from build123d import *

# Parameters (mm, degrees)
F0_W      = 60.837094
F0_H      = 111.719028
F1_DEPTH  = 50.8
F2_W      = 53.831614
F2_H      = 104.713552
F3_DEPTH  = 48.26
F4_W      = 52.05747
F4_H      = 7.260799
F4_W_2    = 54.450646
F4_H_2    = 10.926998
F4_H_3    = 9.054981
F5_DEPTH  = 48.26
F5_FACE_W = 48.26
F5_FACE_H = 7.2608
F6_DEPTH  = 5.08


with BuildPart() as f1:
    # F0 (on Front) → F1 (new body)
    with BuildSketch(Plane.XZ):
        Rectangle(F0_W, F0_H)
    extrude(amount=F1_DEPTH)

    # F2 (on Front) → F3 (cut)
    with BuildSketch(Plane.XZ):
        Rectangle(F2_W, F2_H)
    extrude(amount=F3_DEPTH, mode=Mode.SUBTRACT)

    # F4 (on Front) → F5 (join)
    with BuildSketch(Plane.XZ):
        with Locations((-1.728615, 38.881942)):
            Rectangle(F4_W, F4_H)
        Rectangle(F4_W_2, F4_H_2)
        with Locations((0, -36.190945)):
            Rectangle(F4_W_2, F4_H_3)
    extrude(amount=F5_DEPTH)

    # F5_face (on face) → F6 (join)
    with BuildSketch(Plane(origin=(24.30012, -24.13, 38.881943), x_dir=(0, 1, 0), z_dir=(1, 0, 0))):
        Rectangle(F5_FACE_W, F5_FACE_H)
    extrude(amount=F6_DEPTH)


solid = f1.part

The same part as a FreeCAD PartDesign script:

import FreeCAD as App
import Part
import Sketcher

V = App.Vector
Q = App.Units.Quantity

doc = App.newDocument("Part")
body = doc.addObject("PartDesign::Body", "Body")

sketch1 = body.newObject("Sketcher::SketchObject", "Sketch")
sketch1.AttachmentSupport = (doc.getObject("XZ_Plane"), [""])
sketch1.MapMode = "FlatFace"
sketch1.addGeometry(Part.LineSegment(V(-30, 56, 0), V(-30, -56, 0)), False)
sketch1.addGeometry(Part.LineSegment(V(-30, -56, 0), V(30, -56, 0)), False)
sketch1.addGeometry(Part.LineSegment(V(30, -56, 0), V(30, 56, 0)), False)
sketch1.addGeometry(Part.LineSegment(V(30, 56, 0), V(-30, 56, 0)), False)
sketch1.addConstraint(Sketcher.Constraint("Coincident", 0, 2, 1, 1))
sketch1.addConstraint(Sketcher.Constraint("Coincident", 1, 2, 2, 1))
sketch1.addConstraint(Sketcher.Constraint("Coincident", 2, 2, 3, 1))
sketch1.addConstraint(Sketcher.Constraint("Coincident", 3, 2, 0, 1))
sketch1.addConstraint(Sketcher.Constraint("Vertical", 0))
sketch1.addConstraint(Sketcher.Constraint("Horizontal", 1))
sketch1.addConstraint(Sketcher.Constraint("Vertical", 2))
sketch1.addConstraint(Sketcher.Constraint("Horizontal", 3))
sketch1.addConstraint(Sketcher.Constraint("Symmetric", 0, 2, 2, 2, -1, 1))
sketch1.addConstraint(Sketcher.Constraint("DistanceX", 1, 1, 1, 2, 60.837094))
sketch1.addConstraint(Sketcher.Constraint("DistanceY", 0, 2, 0, 1, 111.719028))
pad1 = body.newObject("PartDesign::Pad", "Pad")
pad1.Profile = sketch1
pad1.Length = Q("2 in")

sketch2 = body.newObject("Sketcher::SketchObject", "Sketch001")
sketch2.AttachmentSupport = (doc.getObject("XZ_Plane"), [""])
sketch2.MapMode = "FlatFace"
sketch2.addGeometry(Part.LineSegment(V(-27, 52, 0), V(-27, -52, 0)), False)
sketch2.addGeometry(Part.LineSegment(V(-27, -52, 0), V(27, -52, 0)), False)
sketch2.addGeometry(Part.LineSegment(V(27, -52, 0), V(27, 52, 0)), False)
sketch2.addGeometry(Part.LineSegment(V(27, 52, 0), V(-27, 52, 0)), False)
sketch2.addConstraint(Sketcher.Constraint("Coincident", 0, 2, 1, 1))
sketch2.addConstraint(Sketcher.Constraint("Coincident", 1, 2, 2, 1))
sketch2.addConstraint(Sketcher.Constraint("Coincident", 2, 2, 3, 1))
sketch2.addConstraint(Sketcher.Constraint("Coincident", 3, 2, 0, 1))
sketch2.addConstraint(Sketcher.Constraint("Vertical", 0))
sketch2.addConstraint(Sketcher.Constraint("Horizontal", 1))
sketch2.addConstraint(Sketcher.Constraint("Vertical", 2))
sketch2.addConstraint(Sketcher.Constraint("Horizontal", 3))
sketch2.addConstraint(Sketcher.Constraint("Symmetric", 0, 2, 2, 2, -1, 1))
sketch2.addConstraint(Sketcher.Constraint("DistanceX", 1, 1, 1, 2, 53.831614))
sketch2.addConstraint(Sketcher.Constraint("DistanceY", 0, 2, 0, 1, 104.713552))
pocket1 = body.newObject("PartDesign::Pocket", "Pocket")
pocket1.Profile = sketch2
pocket1.Length = Q("1.9 in")
pocket1.Reversed = True

sketch3 = body.newObject("Sketcher::SketchObject", "Sketch002")
sketch3.AttachmentSupport = (doc.getObject("XZ_Plane"), [""])
sketch3.MapMode = "FlatFace"
sketch3.addGeometry(Part.LineSegment(V(-28, 43, 0), V(-28, 35, 0)), False)
sketch3.addGeometry(Part.LineSegment(V(-28, 35, 0), V(24, 35, 0)), False)
sketch3.addGeometry(Part.LineSegment(V(24, 35, 0), V(24, 43, 0)), False)
sketch3.addGeometry(Part.LineSegment(V(24, 43, 0), V(-28, 43, 0)), False)
sketch3.addGeometry(Part.LineSegment(V(-27, 5, 0), V(-27, -5, 0)), False)
sketch3.addGeometry(Part.LineSegment(V(-27, -5, 0), V(27, -5, 0)), False)
sketch3.addGeometry(Part.LineSegment(V(27, -5, 0), V(27, 5, 0)), False)
sketch3.addGeometry(Part.LineSegment(V(27, 5, 0), V(-27, 5, 0)), False)
sketch3.addGeometry(Part.LineSegment(V(-27, -32, 0), V(-27, -41, 0)), False)
sketch3.addGeometry(Part.LineSegment(V(-27, -41, 0), V(27, -41, 0)), False)
sketch3.addGeometry(Part.LineSegment(V(27, -41, 0), V(27, -32, 0)), False)
sketch3.addGeometry(Part.LineSegment(V(27, -32, 0), V(-27, -32, 0)), False)
sketch3.addConstraint(Sketcher.Constraint("Coincident", 0, 2, 1, 1))
sketch3.addConstraint(Sketcher.Constraint("Coincident", 1, 2, 2, 1))
sketch3.addConstraint(Sketcher.Constraint("Coincident", 2, 2, 3, 1))
sketch3.addConstraint(Sketcher.Constraint("Coincident", 3, 2, 0, 1))
sketch3.addConstraint(Sketcher.Constraint("Coincident", 4, 2, 5, 1))
sketch3.addConstraint(Sketcher.Constraint("Coincident", 5, 2, 6, 1))
sketch3.addConstraint(Sketcher.Constraint("Coincident", 6, 2, 7, 1))
sketch3.addConstraint(Sketcher.Constraint("Coincident", 7, 2, 4, 1))
sketch3.addConstraint(Sketcher.Constraint("Coincident", 8, 2, 9, 1))
sketch3.addConstraint(Sketcher.Constraint("Coincident", 9, 2, 10, 1))
sketch3.addConstraint(Sketcher.Constraint("Coincident", 10, 2, 11, 1))
sketch3.addConstraint(Sketcher.Constraint("Coincident", 11, 2, 8, 1))
sketch3.addConstraint(Sketcher.Constraint("Vertical", 0))
sketch3.addConstraint(Sketcher.Constraint("Horizontal", 1))
sketch3.addConstraint(Sketcher.Constraint("Vertical", 2))
sketch3.addConstraint(Sketcher.Constraint("Horizontal", 3))
sketch3.addConstraint(Sketcher.Constraint("Vertical", 4))
sketch3.addConstraint(Sketcher.Constraint("Horizontal", 5))
sketch3.addConstraint(Sketcher.Constraint("Vertical", 6))
sketch3.addConstraint(Sketcher.Constraint("Horizontal", 7))
sketch3.addConstraint(Sketcher.Constraint("Vertical", 8))
sketch3.addConstraint(Sketcher.Constraint("Horizontal", 9))
sketch3.addConstraint(Sketcher.Constraint("Vertical", 10))
sketch3.addConstraint(Sketcher.Constraint("Horizontal", 11))
sketch3.addConstraint(Sketcher.Constraint("Symmetric", 4, 2, 6, 2, -1, 1))
sketch3.addConstraint(Sketcher.Constraint("Vertical", 7, 2, 8, 2))
sketch3.addConstraint(Sketcher.Constraint("Vertical", 6, 2, 9, 2))
sketch3.addConstraint(Sketcher.Constraint("DistanceY", 0, 2, 0, 1, 7.260799))
sketch3.addConstraint(Sketcher.Constraint("DistanceX", 1, 1, 1, 2, 52.05747))
sketch3.addConstraint(Sketcher.Constraint("DistanceY", 8, 2, 8, 1, 9.054981))
sketch3.addConstraint(Sketcher.Constraint("DistanceY", 4, 2, -1, 1, 5.463499))
sketch3.addConstraint(Sketcher.Constraint("DistanceX", 5, 1, 5, 2, 54.450646))
sketch3.addConstraint(Sketcher.Constraint("DistanceX", 0, 2, -1, 1, 27.75735))
sketch3.addConstraint(Sketcher.Constraint("DistanceY", -1, 1, 2, 2, 42.512341))
sketch3.addConstraint(Sketcher.Constraint("DistanceY", 8, 2, -1, 1, 40.718435))
pad2 = body.newObject("PartDesign::Pad", "Pad001")
pad2.Profile = sketch3
pad2.Length = Q("1.9 in")

sketch4 = body.newObject("Sketcher::SketchObject", "Sketch003")
sketch4.AttachmentSupport = (doc.getObject("YZ_Plane"), [""])
sketch4.MapMode = "FlatFace"
sketch4.AttachmentOffset = App.Placement(V(0, 0, 24.30012), App.Rotation())
sketch4.addGeometry(Part.LineSegment(V(-48, 43, 0), V(-48, 35, 0)), False)
sketch4.addGeometry(Part.LineSegment(V(-48, 35, 0), V(0, 35, 0)), False)
sketch4.addGeometry(Part.LineSegment(V(0, 35, 0), V(0, 43, 0)), False)
sketch4.addGeometry(Part.LineSegment(V(0, 43, 0), V(-48, 43, 0)), False)
sketch4.addConstraint(Sketcher.Constraint("Coincident", 0, 2, 1, 1))
sketch4.addConstraint(Sketcher.Constraint("Coincident", 1, 2, 2, 1))
sketch4.addConstraint(Sketcher.Constraint("Coincident", 2, 2, 3, 1))
sketch4.addConstraint(Sketcher.Constraint("Coincident", 3, 2, 0, 1))
sketch4.addConstraint(Sketcher.Constraint("Vertical", 0))
sketch4.addConstraint(Sketcher.Constraint("Horizontal", 1))
sketch4.addConstraint(Sketcher.Constraint("Vertical", 2))
sketch4.addConstraint(Sketcher.Constraint("Horizontal", 3))
sketch4.addConstraint(Sketcher.Constraint("PointOnObject", 1, 2, -2))
sketch4.addConstraint(Sketcher.Constraint("DistanceX", 1, 1, 1, 2, Q("1.9 in")))
sketch4.addConstraint(Sketcher.Constraint("DistanceY", 0, 2, 0, 1, 7.2608))
sketch4.addConstraint(Sketcher.Constraint("DistanceY", -1, 1, 0, 2, 35.251543))
pad3 = body.newObject("PartDesign::Pad", "Pad002")
pad3.Profile = sketch4
pad3.Length = Q("0.2 in")

doc.recompute()
